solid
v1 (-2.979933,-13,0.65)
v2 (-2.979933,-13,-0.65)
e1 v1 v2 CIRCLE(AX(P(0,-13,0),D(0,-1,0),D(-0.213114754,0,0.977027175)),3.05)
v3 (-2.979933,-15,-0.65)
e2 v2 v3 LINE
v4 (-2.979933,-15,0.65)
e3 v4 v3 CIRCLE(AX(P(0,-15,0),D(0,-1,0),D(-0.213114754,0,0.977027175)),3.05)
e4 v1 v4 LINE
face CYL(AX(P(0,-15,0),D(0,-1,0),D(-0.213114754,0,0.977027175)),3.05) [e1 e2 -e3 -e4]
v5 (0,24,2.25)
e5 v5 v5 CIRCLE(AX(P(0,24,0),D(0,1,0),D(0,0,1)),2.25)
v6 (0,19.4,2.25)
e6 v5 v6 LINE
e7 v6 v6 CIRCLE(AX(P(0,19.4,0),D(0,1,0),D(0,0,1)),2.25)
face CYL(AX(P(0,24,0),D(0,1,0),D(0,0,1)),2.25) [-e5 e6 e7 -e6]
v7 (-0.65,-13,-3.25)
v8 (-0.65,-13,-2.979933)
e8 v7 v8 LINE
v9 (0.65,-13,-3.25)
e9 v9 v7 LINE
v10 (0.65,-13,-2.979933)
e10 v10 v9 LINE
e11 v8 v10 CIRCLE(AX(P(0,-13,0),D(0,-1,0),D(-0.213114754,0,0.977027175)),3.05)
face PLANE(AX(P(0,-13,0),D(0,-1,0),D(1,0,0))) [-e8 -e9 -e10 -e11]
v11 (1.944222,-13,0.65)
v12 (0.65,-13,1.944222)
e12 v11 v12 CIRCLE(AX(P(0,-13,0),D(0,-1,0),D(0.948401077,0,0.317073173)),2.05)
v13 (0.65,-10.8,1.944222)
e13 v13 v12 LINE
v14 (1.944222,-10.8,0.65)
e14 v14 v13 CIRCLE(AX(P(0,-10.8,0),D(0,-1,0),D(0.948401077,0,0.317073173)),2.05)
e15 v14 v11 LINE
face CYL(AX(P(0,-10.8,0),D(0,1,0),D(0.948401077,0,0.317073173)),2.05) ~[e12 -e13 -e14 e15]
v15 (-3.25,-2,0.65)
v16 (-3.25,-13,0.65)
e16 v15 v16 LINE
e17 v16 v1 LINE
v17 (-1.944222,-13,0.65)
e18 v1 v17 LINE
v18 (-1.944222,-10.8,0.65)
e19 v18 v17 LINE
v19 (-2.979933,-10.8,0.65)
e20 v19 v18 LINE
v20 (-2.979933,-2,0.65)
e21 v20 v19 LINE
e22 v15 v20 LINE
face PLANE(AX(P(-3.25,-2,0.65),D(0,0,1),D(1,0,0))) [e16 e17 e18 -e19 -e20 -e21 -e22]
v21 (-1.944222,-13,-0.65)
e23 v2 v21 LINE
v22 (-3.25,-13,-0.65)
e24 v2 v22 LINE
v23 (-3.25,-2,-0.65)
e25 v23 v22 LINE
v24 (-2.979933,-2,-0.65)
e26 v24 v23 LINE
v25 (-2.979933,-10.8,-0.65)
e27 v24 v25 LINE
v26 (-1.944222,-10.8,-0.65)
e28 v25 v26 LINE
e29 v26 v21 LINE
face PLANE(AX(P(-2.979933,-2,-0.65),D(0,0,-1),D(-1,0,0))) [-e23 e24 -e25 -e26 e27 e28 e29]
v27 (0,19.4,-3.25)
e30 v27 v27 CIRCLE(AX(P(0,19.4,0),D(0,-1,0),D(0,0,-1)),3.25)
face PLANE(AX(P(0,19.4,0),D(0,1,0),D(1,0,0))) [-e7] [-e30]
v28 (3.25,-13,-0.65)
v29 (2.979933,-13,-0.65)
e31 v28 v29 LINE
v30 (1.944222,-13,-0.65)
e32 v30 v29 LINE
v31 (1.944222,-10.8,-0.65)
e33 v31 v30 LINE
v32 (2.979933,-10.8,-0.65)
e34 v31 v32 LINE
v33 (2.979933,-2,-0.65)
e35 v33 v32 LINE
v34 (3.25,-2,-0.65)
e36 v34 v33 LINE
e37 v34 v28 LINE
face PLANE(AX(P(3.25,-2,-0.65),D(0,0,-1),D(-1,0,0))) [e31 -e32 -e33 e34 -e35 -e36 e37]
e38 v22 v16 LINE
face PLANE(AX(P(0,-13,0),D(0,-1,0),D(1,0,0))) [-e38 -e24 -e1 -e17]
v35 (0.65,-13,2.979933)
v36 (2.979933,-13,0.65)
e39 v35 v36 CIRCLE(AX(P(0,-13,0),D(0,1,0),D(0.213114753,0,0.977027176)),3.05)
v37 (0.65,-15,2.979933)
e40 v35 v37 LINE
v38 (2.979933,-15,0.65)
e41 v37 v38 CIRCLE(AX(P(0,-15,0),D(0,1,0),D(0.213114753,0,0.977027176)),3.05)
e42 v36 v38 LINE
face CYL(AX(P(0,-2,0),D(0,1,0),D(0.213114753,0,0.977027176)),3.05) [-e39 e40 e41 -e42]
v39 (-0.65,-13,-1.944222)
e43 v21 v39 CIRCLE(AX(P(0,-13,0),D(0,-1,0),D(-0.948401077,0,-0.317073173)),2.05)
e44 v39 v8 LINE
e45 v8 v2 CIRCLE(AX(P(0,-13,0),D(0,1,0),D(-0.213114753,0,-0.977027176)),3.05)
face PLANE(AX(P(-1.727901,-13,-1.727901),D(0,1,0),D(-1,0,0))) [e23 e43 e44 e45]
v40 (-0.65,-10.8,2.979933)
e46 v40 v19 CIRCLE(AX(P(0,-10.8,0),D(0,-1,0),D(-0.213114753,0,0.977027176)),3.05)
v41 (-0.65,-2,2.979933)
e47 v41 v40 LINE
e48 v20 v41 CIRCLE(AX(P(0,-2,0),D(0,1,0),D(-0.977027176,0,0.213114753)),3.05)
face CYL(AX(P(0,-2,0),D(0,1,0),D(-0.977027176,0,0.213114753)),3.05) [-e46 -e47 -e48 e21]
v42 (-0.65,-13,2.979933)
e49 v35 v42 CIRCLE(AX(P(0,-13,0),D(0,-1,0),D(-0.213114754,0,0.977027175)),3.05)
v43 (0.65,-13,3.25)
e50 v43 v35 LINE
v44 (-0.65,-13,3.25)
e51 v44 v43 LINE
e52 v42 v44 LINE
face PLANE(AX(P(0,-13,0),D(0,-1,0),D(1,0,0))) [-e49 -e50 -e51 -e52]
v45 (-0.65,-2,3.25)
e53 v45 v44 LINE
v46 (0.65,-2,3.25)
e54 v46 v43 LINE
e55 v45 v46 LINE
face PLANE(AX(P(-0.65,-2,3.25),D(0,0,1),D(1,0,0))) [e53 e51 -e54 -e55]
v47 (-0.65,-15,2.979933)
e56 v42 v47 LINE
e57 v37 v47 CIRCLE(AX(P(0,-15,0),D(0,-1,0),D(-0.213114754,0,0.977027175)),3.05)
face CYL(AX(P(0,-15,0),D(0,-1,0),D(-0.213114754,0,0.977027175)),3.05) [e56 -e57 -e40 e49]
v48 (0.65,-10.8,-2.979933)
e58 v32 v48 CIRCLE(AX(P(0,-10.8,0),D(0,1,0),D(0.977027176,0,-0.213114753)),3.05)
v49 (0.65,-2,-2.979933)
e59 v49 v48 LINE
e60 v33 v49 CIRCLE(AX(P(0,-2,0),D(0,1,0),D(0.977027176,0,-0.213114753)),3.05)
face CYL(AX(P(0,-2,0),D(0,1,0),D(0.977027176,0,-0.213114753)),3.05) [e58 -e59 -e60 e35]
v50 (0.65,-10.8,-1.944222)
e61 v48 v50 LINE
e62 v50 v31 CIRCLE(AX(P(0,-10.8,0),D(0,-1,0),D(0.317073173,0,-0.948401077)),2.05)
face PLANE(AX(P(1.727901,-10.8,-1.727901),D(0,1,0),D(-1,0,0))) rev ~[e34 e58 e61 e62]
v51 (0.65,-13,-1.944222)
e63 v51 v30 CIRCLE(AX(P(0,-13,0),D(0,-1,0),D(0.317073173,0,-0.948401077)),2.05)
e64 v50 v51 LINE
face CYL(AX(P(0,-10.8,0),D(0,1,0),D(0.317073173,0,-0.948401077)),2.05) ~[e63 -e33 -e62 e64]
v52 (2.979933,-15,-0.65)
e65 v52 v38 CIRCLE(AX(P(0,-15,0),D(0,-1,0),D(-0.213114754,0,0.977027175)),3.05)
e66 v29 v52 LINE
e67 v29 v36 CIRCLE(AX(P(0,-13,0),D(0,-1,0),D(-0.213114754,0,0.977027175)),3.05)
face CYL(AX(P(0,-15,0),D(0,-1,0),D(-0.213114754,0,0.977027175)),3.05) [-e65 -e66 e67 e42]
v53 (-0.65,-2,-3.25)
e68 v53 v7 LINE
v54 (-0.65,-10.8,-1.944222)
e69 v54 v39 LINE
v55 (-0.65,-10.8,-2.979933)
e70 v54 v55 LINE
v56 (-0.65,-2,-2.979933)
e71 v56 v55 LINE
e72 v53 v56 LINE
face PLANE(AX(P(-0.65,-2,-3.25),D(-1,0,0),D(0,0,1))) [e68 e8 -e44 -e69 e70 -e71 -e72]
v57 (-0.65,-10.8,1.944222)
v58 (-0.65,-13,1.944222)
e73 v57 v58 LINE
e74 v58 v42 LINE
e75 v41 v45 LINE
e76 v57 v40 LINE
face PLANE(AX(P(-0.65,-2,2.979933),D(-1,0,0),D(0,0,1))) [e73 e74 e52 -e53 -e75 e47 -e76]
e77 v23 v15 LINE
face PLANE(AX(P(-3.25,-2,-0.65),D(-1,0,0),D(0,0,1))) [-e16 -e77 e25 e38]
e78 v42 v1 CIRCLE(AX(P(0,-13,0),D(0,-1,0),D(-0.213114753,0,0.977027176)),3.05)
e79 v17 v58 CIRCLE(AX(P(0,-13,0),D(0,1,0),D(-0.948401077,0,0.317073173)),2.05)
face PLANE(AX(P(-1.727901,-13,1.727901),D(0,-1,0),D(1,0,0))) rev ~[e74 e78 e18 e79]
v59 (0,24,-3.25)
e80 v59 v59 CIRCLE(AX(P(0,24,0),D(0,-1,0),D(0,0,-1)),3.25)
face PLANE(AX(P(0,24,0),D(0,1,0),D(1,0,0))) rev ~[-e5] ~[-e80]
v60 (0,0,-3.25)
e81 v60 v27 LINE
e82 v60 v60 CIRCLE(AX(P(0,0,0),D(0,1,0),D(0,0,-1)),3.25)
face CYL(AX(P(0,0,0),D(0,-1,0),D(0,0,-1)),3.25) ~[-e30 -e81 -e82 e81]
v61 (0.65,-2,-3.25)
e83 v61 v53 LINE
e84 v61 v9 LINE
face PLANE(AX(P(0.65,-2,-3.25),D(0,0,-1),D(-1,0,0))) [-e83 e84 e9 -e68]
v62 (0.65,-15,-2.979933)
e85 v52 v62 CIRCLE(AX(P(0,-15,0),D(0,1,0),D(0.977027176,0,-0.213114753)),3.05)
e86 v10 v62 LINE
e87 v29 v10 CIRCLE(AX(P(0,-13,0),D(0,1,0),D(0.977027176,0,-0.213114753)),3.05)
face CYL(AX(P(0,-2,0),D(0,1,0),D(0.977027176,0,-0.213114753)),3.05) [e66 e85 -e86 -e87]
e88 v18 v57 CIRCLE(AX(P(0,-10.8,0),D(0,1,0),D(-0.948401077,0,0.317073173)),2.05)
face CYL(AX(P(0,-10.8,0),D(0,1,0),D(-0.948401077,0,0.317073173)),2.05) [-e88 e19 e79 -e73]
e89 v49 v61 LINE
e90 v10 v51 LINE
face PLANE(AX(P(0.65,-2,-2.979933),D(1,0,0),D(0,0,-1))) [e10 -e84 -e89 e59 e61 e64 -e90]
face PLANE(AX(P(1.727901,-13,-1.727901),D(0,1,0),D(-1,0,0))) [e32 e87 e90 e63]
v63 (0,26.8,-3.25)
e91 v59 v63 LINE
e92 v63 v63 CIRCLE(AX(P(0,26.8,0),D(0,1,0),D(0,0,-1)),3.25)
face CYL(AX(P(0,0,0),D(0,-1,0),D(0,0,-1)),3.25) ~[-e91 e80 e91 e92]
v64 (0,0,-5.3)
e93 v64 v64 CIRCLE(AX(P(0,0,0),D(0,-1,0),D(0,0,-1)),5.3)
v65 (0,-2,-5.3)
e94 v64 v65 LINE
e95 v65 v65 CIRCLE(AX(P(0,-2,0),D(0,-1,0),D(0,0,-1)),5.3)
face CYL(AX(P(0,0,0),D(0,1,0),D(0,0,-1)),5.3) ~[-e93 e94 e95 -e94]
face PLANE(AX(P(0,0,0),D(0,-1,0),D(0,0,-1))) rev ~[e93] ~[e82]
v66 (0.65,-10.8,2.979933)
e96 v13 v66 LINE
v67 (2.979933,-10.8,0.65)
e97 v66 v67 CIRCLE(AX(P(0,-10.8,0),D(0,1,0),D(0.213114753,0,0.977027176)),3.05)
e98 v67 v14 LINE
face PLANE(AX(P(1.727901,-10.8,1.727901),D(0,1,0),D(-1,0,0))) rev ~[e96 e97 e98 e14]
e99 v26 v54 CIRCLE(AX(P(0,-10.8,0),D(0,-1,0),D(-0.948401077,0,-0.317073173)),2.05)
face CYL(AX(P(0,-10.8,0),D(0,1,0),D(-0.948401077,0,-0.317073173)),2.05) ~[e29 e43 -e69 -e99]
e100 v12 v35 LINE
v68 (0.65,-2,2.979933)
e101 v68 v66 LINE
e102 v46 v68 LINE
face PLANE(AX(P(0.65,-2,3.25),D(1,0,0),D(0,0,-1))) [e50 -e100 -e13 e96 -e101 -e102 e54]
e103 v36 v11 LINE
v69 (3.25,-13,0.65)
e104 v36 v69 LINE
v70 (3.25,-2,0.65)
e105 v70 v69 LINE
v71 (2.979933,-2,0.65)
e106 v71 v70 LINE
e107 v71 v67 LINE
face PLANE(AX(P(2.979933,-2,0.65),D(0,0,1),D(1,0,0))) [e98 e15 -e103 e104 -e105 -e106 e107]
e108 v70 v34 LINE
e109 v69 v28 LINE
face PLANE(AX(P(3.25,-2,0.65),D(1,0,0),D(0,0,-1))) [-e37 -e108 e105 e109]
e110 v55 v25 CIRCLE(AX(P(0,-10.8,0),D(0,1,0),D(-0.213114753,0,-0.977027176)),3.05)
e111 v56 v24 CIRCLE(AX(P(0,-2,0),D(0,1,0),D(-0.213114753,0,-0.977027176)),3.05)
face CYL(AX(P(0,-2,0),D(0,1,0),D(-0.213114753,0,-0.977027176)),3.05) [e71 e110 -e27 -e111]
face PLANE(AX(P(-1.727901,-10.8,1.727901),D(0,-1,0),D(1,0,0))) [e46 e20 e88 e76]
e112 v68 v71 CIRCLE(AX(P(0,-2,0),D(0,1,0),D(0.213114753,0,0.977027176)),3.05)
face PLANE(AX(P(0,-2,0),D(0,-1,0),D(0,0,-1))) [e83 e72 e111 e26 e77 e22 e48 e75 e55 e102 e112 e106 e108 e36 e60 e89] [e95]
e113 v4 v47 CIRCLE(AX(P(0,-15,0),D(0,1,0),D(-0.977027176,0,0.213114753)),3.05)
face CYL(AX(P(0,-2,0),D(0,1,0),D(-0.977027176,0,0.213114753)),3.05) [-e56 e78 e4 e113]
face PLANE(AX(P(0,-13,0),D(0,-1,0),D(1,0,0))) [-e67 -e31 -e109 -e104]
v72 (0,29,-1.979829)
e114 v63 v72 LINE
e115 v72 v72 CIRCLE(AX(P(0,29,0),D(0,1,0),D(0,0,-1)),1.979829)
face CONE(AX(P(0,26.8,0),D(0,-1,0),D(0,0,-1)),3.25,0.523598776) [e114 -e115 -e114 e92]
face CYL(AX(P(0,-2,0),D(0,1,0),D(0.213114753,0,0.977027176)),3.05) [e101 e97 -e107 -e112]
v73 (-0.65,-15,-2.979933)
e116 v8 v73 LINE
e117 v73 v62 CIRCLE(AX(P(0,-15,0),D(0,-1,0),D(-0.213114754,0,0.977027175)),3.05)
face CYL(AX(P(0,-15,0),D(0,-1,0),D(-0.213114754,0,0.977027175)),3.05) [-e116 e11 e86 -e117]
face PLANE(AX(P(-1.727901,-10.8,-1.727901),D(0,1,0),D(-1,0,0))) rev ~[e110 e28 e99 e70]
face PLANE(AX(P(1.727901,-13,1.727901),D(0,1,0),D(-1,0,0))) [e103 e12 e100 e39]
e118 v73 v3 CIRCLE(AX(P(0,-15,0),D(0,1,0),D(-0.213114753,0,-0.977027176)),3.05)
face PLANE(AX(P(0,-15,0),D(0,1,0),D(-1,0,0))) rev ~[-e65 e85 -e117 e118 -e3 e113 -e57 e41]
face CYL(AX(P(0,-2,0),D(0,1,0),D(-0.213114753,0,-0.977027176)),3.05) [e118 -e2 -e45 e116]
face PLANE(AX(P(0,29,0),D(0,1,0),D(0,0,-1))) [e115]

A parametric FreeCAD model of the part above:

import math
import FreeCAD as App
import Part
import Sketcher
from FreeCAD import Vector


def edges_at(feature, points):
    """Names of the edges that pass closest to the given points."""
    edges = feature.Shape.Edges
    near = lambda p: min(range(len(edges)), key=lambda i: edges[i].distToShape(Part.Vertex(*p))[0])
    return sorted({f"Edge{near(p) + 1}" for p in points})


def add_polygon(sketch, points):
    """Adds a closed chain of lines whose ends are joined by coincident constraints."""
    first, n = sketch.GeometryCount, len(points)
    for a, b in zip(points, points[1:] + points[:1]):
        sketch.addGeometry(Part.LineSegment(App.Vector(*a, 0), App.Vector(*b, 0)), False)
    for i in range(n):
        sketch.addConstraint(Sketcher.Constraint("Coincident", first + i, 2, first + (i + 1) % n, 1))

doc = App.newDocument("Part")
body = doc.addObject("PartDesign::Body", "Body")

# Sketch on XZ plane
sketch1 = doc.addObject("Sketcher::SketchObject", "Sketch")
body.addObject(sketch1)
sketch1.AttachmentSupport = (doc.XZ_Plane, [""])
sketch1.MapMode = "FlatFace"
sketch1.addGeometry(Part.Circle(Vector(0, 0, 0), Vector(0, 0, 1), 3.2), False)
sketch1.addConstraint([
    Sketcher.Constraint("Coincident", 0, 3, -1, 1),
    Sketcher.Constraint("Diameter", 0, 6.5),
])
pad1 = doc.addObject("PartDesign::Pad", "Pad")
body.addObject(pad1)
pad1.Profile = sketch1
pad1.Length = 29
pad1.Reversed = True

# Sketch on XZ plane
sketch2 = doc.addObject("Sketcher::SketchObject", "Sketch001")
body.addObject(sketch2)
sketch2.AttachmentSupport = (doc.XZ_Plane, [""])
sketch2.MapMode = "FlatFace"
sketch2.AttachmentOffset = App.Placement(Vector(0, 0, -24), App.Rotation())
add_polygon(sketch2, [(-7.3, -7.3), (-7.3, 7.3), (7.3, 7.3), (7.3, -7.3)])  # lines 0-3
sketch2.addGeometry(Part.Circle(Vector(0, 0, 0), Vector(0, 0, 1), 2.2), False)  # 4
sketch2.addConstraint([
    Sketcher.Constraint("Vertical", 0),
    Sketcher.Constraint("Horizontal", 1),
    Sketcher.Constraint("Vertical", 2),
    Sketcher.Constraint("Horizontal", 3),
    Sketcher.Constraint("Coincident", 4, 3, -1, 1),
    Sketcher.Constraint("Symmetric", 0, 2, 2, 2, -1, 1),
    Sketcher.Constraint("Equal", 3, 0),
    Sketcher.Constraint("Diameter", 4, 4.5),
    Sketcher.Constraint("DistanceX", 1, 1, 1, 2, 14.584),
])
pocket1 = doc.addObject("PartDesign::Pocket", "Pocket")
body.addObject(pocket1)
pocket1.Profile = sketch2
pocket1.Length = 4.6
pocket1.Reversed = True
doc.recompute()

chamfer = doc.addObject("PartDesign::Chamfer", "Chamfer")
body.addObject(chamfer)
chamfer.Base = (pocket1, edges_at(pocket1, [(0, 29, 3.25)]))
chamfer.ChamferType = "Two distances"
chamfer.Size = 2.2
chamfer.Size2 = 1.270171

# Sketch on XZ plane
sketch3 = doc.addObject("Sketcher::SketchObject", "Sketch002")
body.addObject(sketch3)
sketch3.AttachmentSupport = (doc.XZ_Plane, [""])
sketch3.MapMode = "FlatFace"
sketch3.addGeometry(Part.Circle(Vector(0, 0, 0), Vector(0, 0, 1), 5), False)
sketch3.addConstraint([
    Sketcher.Constraint("Coincident", 0, 3, -1, 1),
    Sketcher.Constraint("Diameter", 0, 10.6),
])
pad2 = doc.addObject("PartDesign::Pad", "Pad001")
body.addObject(pad2)
pad2.Profile = sketch3
pad2.Length = 2

# Sketch on XZ plane
sketch4 = doc.addObject("Sketcher::SketchObject", "Sketch003")
body.addObject(sketch4)
sketch4.AttachmentSupport = (doc.XZ_Plane, [""])
sketch4.MapMode = "FlatFace"
sketch4.AttachmentOffset = App.Placement(Vector(0, 0, 2), App.Rotation())
sketch4.addGeometry([
    Part.LineSegment(Vector(0.65, 3.25, 0), Vector(-0.65, 3.25, 0)),  # 0
    Part.LineSegment(Vector(-0.65, 3.25, 0), Vector(-0.65, 2.98, 0)),  # 1
    Part.ArcOfCircle(Part.Circle(Vector(0, 0, 0), Vector(0, 0, 1), 3.05), math.radians(102), math.radians(168)),  # 2
    Part.LineSegment(Vector(-2.98, 0.65, 0), Vector(-3.25, 0.65, 0)),  # 3
    Part.LineSegment(Vector(-3.25, 0.65, 0), Vector(-3.25, -0.65, 0)),  # 4
    Part.LineSegment(Vector(-3.25, -0.65, 0), Vector(-2.98, -0.65, 0)),  # 5
    Part.ArcOfCircle(Part.Circle(Vector(0, 0, 0), Vector(0, 0, 1), 3.05), math.radians(-168), math.radians(-102)),  # 6
    Part.LineSegment(Vector(-0.65, -2.98, 0), Vector(-0.65, -3.25, 0)),  # 7
    Part.LineSegment(Vector(-0.65, -3.25, 0), Vector(0.65, -3.25, 0)),  # 8
    Part.LineSegment(Vector(0.65, -3.25, 0), Vector(0.65, -2.98, 0)),  # 9
    Part.ArcOfCircle(Part.Circle(Vector(0, 0, 0), Vector(0, 0, 1), 3.05), math.radians(-78), math.radians(-12)),  # 10
    Part.LineSegment(Vector(2.98, -0.65, 0), Vector(3.25, -0.65, 0)),  # 11
    Part.LineSegment(Vector(3.25, -0.65, 0), Vector(3.25, 0.65, 0)),  # 12
    Part.LineSegment(Vector(3.25, 0.65, 0), Vector(2.98, 0.65, 0)),  # 13
    Part.ArcOfCircle(Part.Circle(Vector(0, 0, 0), Vector(0, 0, 1), 3.05), math.radians(12), math.radians(78)),  # 14
    Part.LineSegment(Vector(0.65, 2.98, 0), Vector(0.65, 3.25, 0)),  # 15
], False)
sketch4.addConstraint([
    Sketcher.Constraint("Coincident", 0, 2, 1, 1),
    Sketcher.Constraint("Coincident", 1, 2, 2, 1),
    Sketcher.Constraint("Coincident", 2, 2, 3, 1),
    Sketcher.Constraint("Coincident", 3, 2, 4, 1),
    Sketcher.Constraint("Coincident", 4, 2, 5, 1),
    Sketcher.Constraint("Coincident", 5, 2, 6, 1),
    Sketcher.Constraint("Coincident", 6, 2, 7, 1),
    Sketcher.Constraint("Coincident", 7, 2, 8, 1),
    Sketcher.Constraint("Coincident", 8, 2, 9, 1),
    Sketcher.Constraint("Coincident", 9, 2, 10, 1),
    Sketcher.Constraint("Coincident", 10, 2, 11, 1),
    Sketcher.Constraint("Coincident", 11, 2, 12, 1),
    Sketcher.Constraint("Coincident", 12, 2, 13, 1),
    Sketcher.Constraint("Coincident", 13, 2, 14, 1),
    Sketcher.Constraint("Coincident", 14, 2, 15, 1),
    Sketcher.Constraint("Coincident", 15, 2, 0, 1),
    Sketcher.Constraint("Horizontal", 0),
    Sketcher.Constraint("Vertical", 1),
    Sketcher.Constraint("Horizontal", 3),
    Sketcher.Constraint("Vertical", 4),
    Sketcher.Constraint("Horizontal", 5),
    Sketcher.Constraint("Vertical", 7),
    Sketcher.Constraint("Horizontal", 8),
    Sketcher.Constraint("Vertical", 9),
    Sketcher.Constraint("Horizontal", 11),
    Sketcher.Constraint("Vertical", 12),
    Sketcher.Constraint("Horizontal", 13),
    Sketcher.Constraint("Vertical", 15),
    Sketcher.Constraint("Coincident", 2, 3, -1, 1),
    Sketcher.Constraint("Coincident", 6, 3, -1, 1),
    Sketcher.Constraint("Coincident", 10, 3, -1, 1),
    Sketcher.Constraint("Coincident", 14, 3, -1, 1),
    Sketcher.Constraint("Equal", 2, 6),
    Sketcher.Constraint("Equal", 6, 10),
    Sketcher.Constraint("Equal", 10, 14),
    Sketcher.Constraint("Symmetric", 0, 2, 8, 2, -1, 1),
    Sketcher.Constraint("Symmetric", 3, 2, 11, 2, -1, 1),
    Sketcher.Constraint("Horizontal", 6, 2, 9, 2),
    Sketcher.Constraint("Horizontal", 5, 2, 10, 2),
    Sketcher.Constraint("Horizontal", 3, 2, 12, 2),
    Sketcher.Constraint("Horizontal", 1, 2, 14, 2),
    Sketcher.Constraint("Equal", 13, 1),
    Sketcher.Constraint("Equal", 8, 4),
    Sketcher.Constraint("Radius", 2, 3.05),
    Sketcher.Constraint("DistanceX", 0, 2, 0, 1, 1.3),
    Sketcher.Constraint("DistanceY", -1, 1, 0, 2, 3.25),
])
pad3 = doc.addObject("PartDesign::Pad", "Pad002")
body.addObject(pad3)
pad3.Profile = sketch4
pad3.Length = 13

# Sketch on XZ plane
sketch5 = doc.addObject("Sketcher::SketchObject", "Sketch004")
body.addObject(sketch5)
sketch5.AttachmentSupport = (doc.XZ_Plane, [""])
sketch5.MapMode = "FlatFace"
sketch5.AttachmentOffset = App.Placement(Vector(0, 0, 10.8), App.Rotation())
sketch5.addGeometry([
    Part.LineSegment(Vector(-3, 0.7, 0), Vector(-1.9, 0.7, 0)),  # 0
    Part.ArcOfCircle(Part.Circle(Vector(0, 0, 0), Vector(0, 0, 1), 2.1), math.radians(108), math.radians(162)),  # 1
    Part.LineSegment(Vector(-0.7, 1.9, 0), Vector(-0.7, 3, 0)),  # 2
    Part.ArcOfCircle(Part.Circle(Vector(0, 0, 0), Vector(0, 0, 1), 3), math.radians(102), math.radians(168)),  # 3
    Part.LineSegment(Vector(1.9, 0.7, 0), Vector(3, 0.7, 0)),  # 4
    Part.ArcOfCircle(Part.Circle(Vector(0, 0, 0), Vector(0, 0, 1), 3), math.radians(12), math.radians(78)),  # 5
    Part.LineSegment(Vector(0.7, 3, 0), Vector(0.7, 1.9, 0)),  # 6
    Part.ArcOfCircle(Part.Circle(Vector(0, 0, 0), Vector(0, 0, 1), 2.1), math.radians(18), math.radians(72)),  # 7
    Part.LineSegment(Vector(-0.7, -3, 0), Vector(-0.7, -1.9, 0)),  # 8
    Part.ArcOfCircle(Part.Circle(Vector(0, 0, 0), Vector(0, 0, 1), 2.1), math.radians(-162), math.radians(-108)),  # 9
    Part.LineSegment(Vector(-1.9, -0.7, 0), Vector(-3, -0.7, 0)),  # 10
    Part.ArcOfCircle(Part.Circle(Vector(0, 0, 0), Vector(0, 0, 1), 3), math.radians(-168), math.radians(-102)),  # 11
    Part.LineSegment(Vector(0.7, -1.9, 0), Vector(0.7, -3, 0)),  # 12
    Part.ArcOfCircle(Part.Circle(Vector(0, 0, 0), Vector(0, 0, 1), 3), math.radians(-78), math.radians(-12)),  # 13
    Part.LineSegment(Vector(3, -0.7, 0), Vector(1.9, -0.7, 0)),  # 14
    Part.ArcOfCircle(Part.Circle(Vector(0, 0, 0), Vector(0, 0, 1), 2.1), math.radians(-72), math.radians(-18)),  # 15
], False)
sketch5.addConstraint([
    Sketcher.Constraint("Coincident", 0, 2, 1, 2),
    Sketcher.Constraint("Coincident", 1, 1, 2, 1),
    Sketcher.Constraint("Coincident", 2, 2, 3, 1),
    Sketcher.Constraint("Coincident", 3, 2, 0, 1),
    Sketcher.Constraint("Coincident", 4, 2, 5, 1),
    Sketcher.Constraint("Coincident", 5, 2, 6, 1),
    Sketcher.Constraint("Coincident", 6, 2, 7, 2),
    Sketcher.Constraint("Coincident", 7, 1, 4, 1),
    Sketcher.Constraint("Coincident", 8, 2, 9, 2),
    Sketcher.Constraint("Coincident", 9, 1, 10, 1),
    Sketcher.Constraint("Coincident", 10, 2, 11, 1),
    Sketcher.Constraint("Coincident", 11, 2, 8, 1),
    Sketcher.Constraint("Coincident", 12, 2, 13, 1),
    Sketcher.Constraint("Coincident", 13, 2, 14, 1),
    Sketcher.Constraint("Coincident", 14, 2, 15, 2),
    Sketcher.Constraint("Coincident", 15, 1, 12, 1),
    Sketcher.Constraint("Horizontal", 0),
    Sketcher.Constraint("Vertical", 2),
    Sketcher.Constraint("Horizontal", 4),
    Sketcher.Constraint("Vertical", 6),
    Sketcher.Constraint("Vertical", 8),
    Sketcher.Constraint("Horizontal", 10),
    Sketcher.Constraint("Vertical", 12),
    Sketcher.Constraint("Horizontal", 14),
    Sketcher.Constraint("Coincident", 1, 3, -1, 1),
    Sketcher.Constraint("Coincident", 3, 3, -1, 1),
    Sketcher.Constraint("Coincident", 5, 3, -1, 1),
    Sketcher.Constraint("Coincident", 7, 3, -1, 1),
    Sketcher.Constraint("Coincident", 9, 3, -1, 1),
    Sketcher.Constraint("Coincident", 11, 3, -1, 1),
    Sketcher.Constraint("Coincident", 13, 3, -1, 1),
    Sketcher.Constraint("Coincident", 15, 3, -1, 1),
    Sketcher.Constraint("Equal", 3, 5),
    Sketcher.Constraint("Equal", 1, 7),
    Sketcher.Constraint("Equal", 7, 9),
    Sketcher.Constraint("Equal", 5, 11),
    Sketcher.Constraint("Equal", 11, 13),
    Sketcher.Constraint("Equal", 9, 15),
    Sketcher.Constraint("Horizontal", 3, 2, 4, 2),
    Sketcher.Constraint("Horizontal", 2, 2, 5, 2),
    Sketcher.Constraint("Horizontal", 11, 2, 12, 2),
    Sketcher.Constraint("Horizontal", 10, 2, 13, 2),
    Sketcher.Constraint("Vertical", 2, 2, 8, 2),
    Sketcher.Constraint("Vertical", 0, 2, 9, 1),
    Sketcher.Constraint("Equal", 14, 2),
    Sketcher.Constraint("Radius", 1, 2.05),
    Sketcher.Constraint("Radius", 3, 3.05),
    Sketcher.Constraint("DistanceX", 2, 2, 5, 2, 1.3),
])
pocket2 = doc.addObject("PartDesign::Pocket", "Pocket001")
body.addObject(pocket2)
pocket2.Profile = sketch5
pocket2.Length = 2.2
pocket2.Reversed = True

# Sketch on XZ plane
sketch6 = doc.addObject("Sketcher::SketchObject", "Sketch005")
body.addObject(sketch6)
sketch6.AttachmentSupport = (doc.XZ_Plane, [""])
sketch6.MapMode = "FlatFace"
sketch6.AttachmentOffset = App.Placement(Vector(0, 0, 15), App.Rotation())
add_polygon(sketch6, [(-10.9, 10.9), (-10.9, -10.9), (10.9, -10.9), (10.9, 10.9)])  # lines 0-3
sketch6.addGeometry(Part.Circle(Vector(0, 0, 0), Vector(0, 0, 1), 3), False)  # 4
sketch6.addConstraint([
    Sketcher.Constraint("Vertical", 0),
    Sketcher.Constraint("Horizontal", 1),
    Sketcher.Constraint("Vertical", 2),
    Sketcher.Constraint("Horizontal", 3),
    Sketcher.Constraint("Coincident", 4, 3, -1, 1),
    Sketcher.Constraint("Symmetric", 0, 2, 2, 2, -1, 1),
    Sketcher.Constraint("Equal", 3, 0),
    Sketcher.Constraint("Diameter", 4, 6.1),
    Sketcher.Constraint("DistanceX", 1, 1, 1, 2, 21.896),
])
pocket3 = doc.addObject("PartDesign::Pocket", "Pocket002")
body.addObject(pocket3)
pocket3.Profile = sketch6
pocket3.Length = 2

doc.recompute()
